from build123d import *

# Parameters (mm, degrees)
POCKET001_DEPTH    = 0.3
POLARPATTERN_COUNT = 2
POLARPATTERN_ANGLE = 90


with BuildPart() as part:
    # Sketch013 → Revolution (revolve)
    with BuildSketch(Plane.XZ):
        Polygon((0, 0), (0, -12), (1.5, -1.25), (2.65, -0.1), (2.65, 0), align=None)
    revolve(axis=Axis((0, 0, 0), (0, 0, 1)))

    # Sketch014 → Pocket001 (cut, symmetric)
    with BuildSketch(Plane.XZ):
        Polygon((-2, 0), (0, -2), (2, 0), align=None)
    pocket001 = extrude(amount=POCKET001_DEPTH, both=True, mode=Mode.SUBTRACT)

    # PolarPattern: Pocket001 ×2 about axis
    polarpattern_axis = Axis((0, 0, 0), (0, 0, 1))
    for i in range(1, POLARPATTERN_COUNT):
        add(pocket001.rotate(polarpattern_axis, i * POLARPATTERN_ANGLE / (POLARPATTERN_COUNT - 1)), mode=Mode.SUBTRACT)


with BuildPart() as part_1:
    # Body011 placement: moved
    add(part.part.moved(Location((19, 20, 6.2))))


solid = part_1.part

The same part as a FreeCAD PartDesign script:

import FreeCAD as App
import Part
import Sketcher
Q = App.Units.Quantity

doc = App.newDocument("Part")
body = doc.addObject("PartDesign::Body", "Body")

# Sketch on XZ plane
sketch1 = doc.addObject("Sketcher::SketchObject", "Sketch")
body.addObject(sketch1)
sketch1.AttachmentSupport = (doc.XZ_Plane, [""])
sketch1.MapMode = "FlatFace"
sketch1.addGeometry([
    Part.LineSegment(App.Vector(0, 0, 0), App.Vector(0, -12, 0)),  # 0
    Part.LineSegment(App.Vector(0, -12, 0), App.Vector(1.5, -1.25, 0)),  # 1
    Part.LineSegment(App.Vector(1.5, -1.25, 0), App.Vector(2.65, -0.1, 0)),  # 2
    Part.LineSegment(App.Vector(2.65, -0.1, 0), App.Vector(2.65, 0, 0)),  # 3
    Part.LineSegment(App.Vector(2.65, 0, 0), App.Vector(0, 0, 0)),  # 4
], False)
sketch1.addConstraint([
    Sketcher.Constraint("Coincident", 0, 2, 1, 1),
    Sketcher.Constraint("Coincident", 1, 2, 2, 1),
    Sketcher.Constraint("Coincident", 2, 2, 3, 1),
    Sketcher.Constraint("Coincident", 3, 2, 4, 1),
    Sketcher.Constraint("Coincident", 4, 2, 0, 1),
    Sketcher.Constraint("Vertical", 0),
    Sketcher.Constraint("Vertical", 3),
    Sketcher.Constraint("Horizontal", 4),
    Sketcher.Constraint("Coincident", 4, 2, -1, 1),
    Sketcher.Constraint("DistanceY", 0, 2, 0, 1, Q("12 mm")),
    Sketcher.Constraint("Angle", 2, Q("45 deg")),
    Sketcher.Constraint("DistanceY", 3, 1, 3, 2, Q("0.1 mm")),
    Sketcher.Constraint("DistanceX", 4, 2, 4, 1, Q("2.65 mm")),
    Sketcher.Constraint("DistanceX", -1, 1, 1, 2, Q("1.5 mm")),
])
revolution = doc.addObject("PartDesign::Revolution", "Revolution")
body.addObject(revolution)
revolution.Profile = sketch1
revolution.ReferenceAxis = (sketch1, ["V_Axis"])
revolution.Angle = 360

# Sketch on XZ plane
sketch2 = doc.addObject("Sketcher::SketchObject", "Sketch001")
body.addObject(sketch2)
sketch2.AttachmentSupport = (doc.XZ_Plane, [""])
sketch2.MapMode = "FlatFace"
sketch2.addGeometry([
    Part.LineSegment(App.Vector(-2, 0, 0), App.Vector(0, -2, 0)),
    Part.LineSegment(App.Vector(0, -2, 0), App.Vector(2, 0, 0)),
    Part.LineSegment(App.Vector(2, 0, 0), App.Vector(-2, 0, 0)),
], False)
sketch2.addConstraint([
    Sketcher.Constraint("Coincident", 0, 2, 1, 1),
    Sketcher.Constraint("Coincident", 1, 2, 2, 1),
    Sketcher.Constraint("Coincident", 2, 2, 0, 1),
    Sketcher.Constraint("Horizontal", 2),
    Sketcher.Constraint("Symmetric", 1, 2, 2, 2, -1, 1),
    Sketcher.Constraint("PointOnObject", 0, 2, -2),
    Sketcher.Constraint("Perpendicular", 0, 1),
    Sketcher.Constraint("DistanceX", 2, 2, 2, 1, Q("4 mm")),
])
pocket1 = doc.addObject("PartDesign::Pocket", "Pocket")
body.addObject(pocket1)
pocket1.Profile = sketch2
pocket1.Length = 0.6
pocket1.Midplane = True
doc.recompute()

polarpattern = doc.addObject("PartDesign::PolarPattern", "PolarPattern")
body.addObject(polarpattern)
polarpattern.Originals = [pocket1]
polarpattern.Axis = (doc.Z_Axis, [""])
polarpattern.Angle = 90
polarpattern.Occurrences = 2
body.Tip = polarpattern
body2 = doc.addObject("PartDesign::Body", "Body001")
doc.recompute()

body.Placement = App.Placement(App.Vector(19, 20, 6.2), App.Rotation(App.Vector(0, 0, 1), 0))
boolean = doc.addObject("PartDesign::Boolean", "Boolean")
body2.addObject(boolean)
boolean.Type = "Fuse"
boolean.addObjects([body])

doc.recompute()
